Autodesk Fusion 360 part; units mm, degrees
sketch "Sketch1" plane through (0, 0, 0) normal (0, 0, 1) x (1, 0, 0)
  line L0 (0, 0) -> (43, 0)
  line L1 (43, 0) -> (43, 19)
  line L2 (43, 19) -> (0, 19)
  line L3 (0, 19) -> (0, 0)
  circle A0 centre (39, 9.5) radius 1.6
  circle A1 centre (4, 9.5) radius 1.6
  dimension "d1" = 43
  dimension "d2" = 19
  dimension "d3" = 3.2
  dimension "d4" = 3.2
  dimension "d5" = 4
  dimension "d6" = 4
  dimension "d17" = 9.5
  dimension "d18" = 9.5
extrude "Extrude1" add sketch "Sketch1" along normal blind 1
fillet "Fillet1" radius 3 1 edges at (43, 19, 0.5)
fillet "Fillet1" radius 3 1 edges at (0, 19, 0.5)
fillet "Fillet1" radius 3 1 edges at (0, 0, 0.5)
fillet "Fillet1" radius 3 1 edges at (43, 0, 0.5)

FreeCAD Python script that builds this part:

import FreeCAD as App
import Part
import Sketcher

V = App.Vector
Q = App.Units.Quantity


def edges_at(feature, points):
    """Names of the edges that pass closest to the given points."""
    edges = feature.Shape.Edges
    near = lambda p: min(range(len(edges)), key=lambda i: edges[i].distToShape(Part.Vertex(*p))[0])
    return sorted({f"Edge{near(p) + 1}" for p in points})


def add_polygon(sketch, points):
    """Adds a closed chain of lines whose ends are joined by coincident constraints."""
    first, n = sketch.GeometryCount, len(points)
    for a, b in zip(points, points[1:] + points[:1]):
        sketch.addGeometry(Part.LineSegment(App.Vector(*a, 0), App.Vector(*b, 0)), False)
    for i in range(n):
        sketch.addConstraint(Sketcher.Constraint("Coincident", first + i, 2, first + (i + 1) % n, 1))

doc = App.newDocument("Part")
body = doc.addObject("PartDesign::Body", "Body")

# Sketch on XY plane
sketch1 = body.newObject("Sketcher::SketchObject", "Sketch")
sketch1.AttachmentSupport = (doc.getObject("XY_Plane"), [""])
sketch1.MapMode = "FlatFace"
add_polygon(sketch1, [(0, 19), (0, 0), (43, 0), (43, 19)])  # lines 0-3
sketch1.addGeometry(Part.Circle(V(4, 9.5, 0), V(0, 0, 1), 1.6), False)  # 4
sketch1.addGeometry(Part.Circle(V(39, 9.5, 0), V(0, 0, 1), 1.6), False)  # 5
sketch1.addConstraint(Sketcher.Constraint("Vertical", 0))
sketch1.addConstraint(Sketcher.Constraint("Horizontal", 1))
sketch1.addConstraint(Sketcher.Constraint("Vertical", 2))
sketch1.addConstraint(Sketcher.Constraint("Horizontal", 3))
sketch1.addConstraint(Sketcher.Constraint("Coincident", 0, 2, -1, 1))
sketch1.addConstraint(Sketcher.Constraint("Equal", 4, 5))
sketch1.addConstraint(Sketcher.Constraint("Horizontal", 4, 3, 5, 3))
sketch1.addConstraint(Sketcher.Constraint("Diameter", 4, Q("3.2 mm")))
sketch1.addConstraint(Sketcher.Constraint("DistanceX", 1, 1, 1, 2, Q("43 mm")))
sketch1.addConstraint(Sketcher.Constraint("DistanceY", 0, 2, 0, 1, Q("19 mm")))
sketch1.addConstraint(Sketcher.Constraint("DistanceX", -1, 1, 4, 3, Q("4 mm")))
sketch1.addConstraint(Sketcher.Constraint("DistanceX", 5, 3, 1, 2, Q("4 mm")))
sketch1.addConstraint(Sketcher.Constraint("DistanceY", -1, 1, 4, 3, Q("9.5 mm")))
pad1 = body.newObject("PartDesign::Pad", "Pad")
pad1.Profile = sketch1
pad1.Length = 1
doc.recompute()

fillet = body.newObject("PartDesign::Fillet", "Fillet")
fillet.Base = (pad1, edges_at(pad1, [(43, 19, 0.5)]))
fillet.Radius = 3
doc.recompute()

fillet2 = body.newObject("PartDesign::Fillet", "Fillet001")
fillet2.Base = (fillet, edges_at(fillet, [(0, 19, 0.5)]))
fillet2.Radius = 3
doc.recompute()

fillet3 = body.newObject("PartDesign::Fillet", "Fillet002")
fillet3.Base = (fillet2, edges_at(fillet2, [(0, 0, 0.5)]))
fillet3.Radius = 3
doc.recompute()

fillet4 = body.newObject("PartDesign::Fillet", "Fillet003")
fillet4.Base = (fillet3, edges_at(fillet3, [(43, 0, 0.5)]))
fillet4.Radius = 3

doc.recompute()
